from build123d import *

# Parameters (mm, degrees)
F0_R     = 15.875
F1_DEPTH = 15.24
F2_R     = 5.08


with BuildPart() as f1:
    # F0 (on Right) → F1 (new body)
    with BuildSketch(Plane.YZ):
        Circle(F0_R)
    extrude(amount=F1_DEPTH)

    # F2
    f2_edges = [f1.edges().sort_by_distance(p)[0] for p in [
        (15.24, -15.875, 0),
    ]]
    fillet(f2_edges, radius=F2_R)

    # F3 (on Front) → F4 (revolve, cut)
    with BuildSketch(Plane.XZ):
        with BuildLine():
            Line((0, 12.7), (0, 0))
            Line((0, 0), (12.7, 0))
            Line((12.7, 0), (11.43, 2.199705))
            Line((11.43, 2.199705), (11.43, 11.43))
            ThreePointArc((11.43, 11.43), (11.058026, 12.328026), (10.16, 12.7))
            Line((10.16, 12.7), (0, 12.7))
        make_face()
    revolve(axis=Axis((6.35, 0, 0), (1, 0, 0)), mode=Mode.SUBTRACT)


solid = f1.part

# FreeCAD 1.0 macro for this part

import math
import FreeCAD as App
import Part
import Sketcher
Q = App.Units.Quantity


def edges_at(feature, points):
    """Names of the edges that pass closest to the given points."""
    edges = feature.Shape.Edges
    near = lambda p: min(range(len(edges)), key=lambda i: edges[i].distToShape(Part.Vertex(*p))[0])
    return sorted({f"Edge{near(p) + 1}" for p in points})

doc = App.newDocument("Part")
body = doc.addObject("PartDesign::Body", "Body")

# Sketch on YZ plane
sketch1 = body.newObject("Sketcher::SketchObject", "Sketch")
sketch1.AttachmentSupport = (doc.getObject("YZ_Plane"), [""])
sketch1.MapMode = "FlatFace"
sketch1.addGeometry(Part.Circle(App.Vector(0, 0, 0), App.Vector(0, 0, 1), 16), False)
sketch1.addConstraint([
    Sketcher.Constraint("Coincident", 0, 3, -1, 1),
    Sketcher.Constraint("Diameter", 0, Q("1.25 in")),
])
pad1 = body.newObject("PartDesign::Pad", "Pad")
pad1.Profile = sketch1
pad1.Length = Q("0.6 in")
doc.recompute()

fillet = body.newObject("PartDesign::Fillet", "Fillet")
fillet.Base = (pad1, edges_at(pad1, [(15.24, -15.875, 0)]))
fillet.Radius = Q("0.2 in")

# Sketch on XZ plane
sketch2 = body.newObject("Sketcher::SketchObject", "Sketch001")
sketch2.AttachmentSupport = (doc.getObject("XZ_Plane"), [""])
sketch2.MapMode = "FlatFace"
sketch2.addGeometry([
    Part.LineSegment(App.Vector(0, 12.7, 0), App.Vector(0, 0, 0)),  # 0
    Part.LineSegment(App.Vector(0, 0, 0), App.Vector(12.7, 0, 0)),  # 1
    Part.LineSegment(App.Vector(12.7, 0, 0), App.Vector(11.4, 2.2, 0)),  # 2
    Part.LineSegment(App.Vector(11.4, 2.2, 0), App.Vector(11.4, 11.4, 0)),  # 3
    Part.ArcOfCircle(Part.Circle(App.Vector(10.2, 11.4, 0), App.Vector(0, 0, 1), 1.3), math.radians(0), math.radians(90)),  # 4
    Part.LineSegment(App.Vector(10.2, 12.7, 0), App.Vector(0, 12.7, 0)),  # 5
], False)
sketch2.addConstraint([
    Sketcher.Constraint("Coincident", 0, 2, 1, 1),
    Sketcher.Constraint("Coincident", 1, 2, 2, 1),
    Sketcher.Constraint("Coincident", 2, 2, 3, 1),
    Sketcher.Constraint("Tangent", 3, 2, 4, 1),
    Sketcher.Constraint("Tangent", 4, 2, 5, 1),
    Sketcher.Constraint("Coincident", 5, 2, 0, 1),
    Sketcher.Constraint("Vertical", 0),
    Sketcher.Constraint("Horizontal", 1),
    Sketcher.Constraint("Vertical", 3),
    Sketcher.Constraint("Horizontal", 5),
    Sketcher.Constraint("Coincident", 0, 2, -1, 1),
    Sketcher.Constraint("Equal", 1, 0),
    Sketcher.Constraint("Radius", 4, Q("0.0499999 in")),
    Sketcher.Constraint("DistanceX", 1, 1, 1, 2, Q("0.5 in")),
    Sketcher.Constraint("DistanceX", 5, 2, 5, 1, Q("0.4 in")),
    Sketcher.Constraint("Angle", 2, Q("119.999995 deg")),
])
groove = body.newObject("PartDesign::Groove", "Groove")
groove.Profile = sketch2
groove.ReferenceAxis = (sketch2, ["H_Axis"])
groove.Angle = 360

doc.recompute()
